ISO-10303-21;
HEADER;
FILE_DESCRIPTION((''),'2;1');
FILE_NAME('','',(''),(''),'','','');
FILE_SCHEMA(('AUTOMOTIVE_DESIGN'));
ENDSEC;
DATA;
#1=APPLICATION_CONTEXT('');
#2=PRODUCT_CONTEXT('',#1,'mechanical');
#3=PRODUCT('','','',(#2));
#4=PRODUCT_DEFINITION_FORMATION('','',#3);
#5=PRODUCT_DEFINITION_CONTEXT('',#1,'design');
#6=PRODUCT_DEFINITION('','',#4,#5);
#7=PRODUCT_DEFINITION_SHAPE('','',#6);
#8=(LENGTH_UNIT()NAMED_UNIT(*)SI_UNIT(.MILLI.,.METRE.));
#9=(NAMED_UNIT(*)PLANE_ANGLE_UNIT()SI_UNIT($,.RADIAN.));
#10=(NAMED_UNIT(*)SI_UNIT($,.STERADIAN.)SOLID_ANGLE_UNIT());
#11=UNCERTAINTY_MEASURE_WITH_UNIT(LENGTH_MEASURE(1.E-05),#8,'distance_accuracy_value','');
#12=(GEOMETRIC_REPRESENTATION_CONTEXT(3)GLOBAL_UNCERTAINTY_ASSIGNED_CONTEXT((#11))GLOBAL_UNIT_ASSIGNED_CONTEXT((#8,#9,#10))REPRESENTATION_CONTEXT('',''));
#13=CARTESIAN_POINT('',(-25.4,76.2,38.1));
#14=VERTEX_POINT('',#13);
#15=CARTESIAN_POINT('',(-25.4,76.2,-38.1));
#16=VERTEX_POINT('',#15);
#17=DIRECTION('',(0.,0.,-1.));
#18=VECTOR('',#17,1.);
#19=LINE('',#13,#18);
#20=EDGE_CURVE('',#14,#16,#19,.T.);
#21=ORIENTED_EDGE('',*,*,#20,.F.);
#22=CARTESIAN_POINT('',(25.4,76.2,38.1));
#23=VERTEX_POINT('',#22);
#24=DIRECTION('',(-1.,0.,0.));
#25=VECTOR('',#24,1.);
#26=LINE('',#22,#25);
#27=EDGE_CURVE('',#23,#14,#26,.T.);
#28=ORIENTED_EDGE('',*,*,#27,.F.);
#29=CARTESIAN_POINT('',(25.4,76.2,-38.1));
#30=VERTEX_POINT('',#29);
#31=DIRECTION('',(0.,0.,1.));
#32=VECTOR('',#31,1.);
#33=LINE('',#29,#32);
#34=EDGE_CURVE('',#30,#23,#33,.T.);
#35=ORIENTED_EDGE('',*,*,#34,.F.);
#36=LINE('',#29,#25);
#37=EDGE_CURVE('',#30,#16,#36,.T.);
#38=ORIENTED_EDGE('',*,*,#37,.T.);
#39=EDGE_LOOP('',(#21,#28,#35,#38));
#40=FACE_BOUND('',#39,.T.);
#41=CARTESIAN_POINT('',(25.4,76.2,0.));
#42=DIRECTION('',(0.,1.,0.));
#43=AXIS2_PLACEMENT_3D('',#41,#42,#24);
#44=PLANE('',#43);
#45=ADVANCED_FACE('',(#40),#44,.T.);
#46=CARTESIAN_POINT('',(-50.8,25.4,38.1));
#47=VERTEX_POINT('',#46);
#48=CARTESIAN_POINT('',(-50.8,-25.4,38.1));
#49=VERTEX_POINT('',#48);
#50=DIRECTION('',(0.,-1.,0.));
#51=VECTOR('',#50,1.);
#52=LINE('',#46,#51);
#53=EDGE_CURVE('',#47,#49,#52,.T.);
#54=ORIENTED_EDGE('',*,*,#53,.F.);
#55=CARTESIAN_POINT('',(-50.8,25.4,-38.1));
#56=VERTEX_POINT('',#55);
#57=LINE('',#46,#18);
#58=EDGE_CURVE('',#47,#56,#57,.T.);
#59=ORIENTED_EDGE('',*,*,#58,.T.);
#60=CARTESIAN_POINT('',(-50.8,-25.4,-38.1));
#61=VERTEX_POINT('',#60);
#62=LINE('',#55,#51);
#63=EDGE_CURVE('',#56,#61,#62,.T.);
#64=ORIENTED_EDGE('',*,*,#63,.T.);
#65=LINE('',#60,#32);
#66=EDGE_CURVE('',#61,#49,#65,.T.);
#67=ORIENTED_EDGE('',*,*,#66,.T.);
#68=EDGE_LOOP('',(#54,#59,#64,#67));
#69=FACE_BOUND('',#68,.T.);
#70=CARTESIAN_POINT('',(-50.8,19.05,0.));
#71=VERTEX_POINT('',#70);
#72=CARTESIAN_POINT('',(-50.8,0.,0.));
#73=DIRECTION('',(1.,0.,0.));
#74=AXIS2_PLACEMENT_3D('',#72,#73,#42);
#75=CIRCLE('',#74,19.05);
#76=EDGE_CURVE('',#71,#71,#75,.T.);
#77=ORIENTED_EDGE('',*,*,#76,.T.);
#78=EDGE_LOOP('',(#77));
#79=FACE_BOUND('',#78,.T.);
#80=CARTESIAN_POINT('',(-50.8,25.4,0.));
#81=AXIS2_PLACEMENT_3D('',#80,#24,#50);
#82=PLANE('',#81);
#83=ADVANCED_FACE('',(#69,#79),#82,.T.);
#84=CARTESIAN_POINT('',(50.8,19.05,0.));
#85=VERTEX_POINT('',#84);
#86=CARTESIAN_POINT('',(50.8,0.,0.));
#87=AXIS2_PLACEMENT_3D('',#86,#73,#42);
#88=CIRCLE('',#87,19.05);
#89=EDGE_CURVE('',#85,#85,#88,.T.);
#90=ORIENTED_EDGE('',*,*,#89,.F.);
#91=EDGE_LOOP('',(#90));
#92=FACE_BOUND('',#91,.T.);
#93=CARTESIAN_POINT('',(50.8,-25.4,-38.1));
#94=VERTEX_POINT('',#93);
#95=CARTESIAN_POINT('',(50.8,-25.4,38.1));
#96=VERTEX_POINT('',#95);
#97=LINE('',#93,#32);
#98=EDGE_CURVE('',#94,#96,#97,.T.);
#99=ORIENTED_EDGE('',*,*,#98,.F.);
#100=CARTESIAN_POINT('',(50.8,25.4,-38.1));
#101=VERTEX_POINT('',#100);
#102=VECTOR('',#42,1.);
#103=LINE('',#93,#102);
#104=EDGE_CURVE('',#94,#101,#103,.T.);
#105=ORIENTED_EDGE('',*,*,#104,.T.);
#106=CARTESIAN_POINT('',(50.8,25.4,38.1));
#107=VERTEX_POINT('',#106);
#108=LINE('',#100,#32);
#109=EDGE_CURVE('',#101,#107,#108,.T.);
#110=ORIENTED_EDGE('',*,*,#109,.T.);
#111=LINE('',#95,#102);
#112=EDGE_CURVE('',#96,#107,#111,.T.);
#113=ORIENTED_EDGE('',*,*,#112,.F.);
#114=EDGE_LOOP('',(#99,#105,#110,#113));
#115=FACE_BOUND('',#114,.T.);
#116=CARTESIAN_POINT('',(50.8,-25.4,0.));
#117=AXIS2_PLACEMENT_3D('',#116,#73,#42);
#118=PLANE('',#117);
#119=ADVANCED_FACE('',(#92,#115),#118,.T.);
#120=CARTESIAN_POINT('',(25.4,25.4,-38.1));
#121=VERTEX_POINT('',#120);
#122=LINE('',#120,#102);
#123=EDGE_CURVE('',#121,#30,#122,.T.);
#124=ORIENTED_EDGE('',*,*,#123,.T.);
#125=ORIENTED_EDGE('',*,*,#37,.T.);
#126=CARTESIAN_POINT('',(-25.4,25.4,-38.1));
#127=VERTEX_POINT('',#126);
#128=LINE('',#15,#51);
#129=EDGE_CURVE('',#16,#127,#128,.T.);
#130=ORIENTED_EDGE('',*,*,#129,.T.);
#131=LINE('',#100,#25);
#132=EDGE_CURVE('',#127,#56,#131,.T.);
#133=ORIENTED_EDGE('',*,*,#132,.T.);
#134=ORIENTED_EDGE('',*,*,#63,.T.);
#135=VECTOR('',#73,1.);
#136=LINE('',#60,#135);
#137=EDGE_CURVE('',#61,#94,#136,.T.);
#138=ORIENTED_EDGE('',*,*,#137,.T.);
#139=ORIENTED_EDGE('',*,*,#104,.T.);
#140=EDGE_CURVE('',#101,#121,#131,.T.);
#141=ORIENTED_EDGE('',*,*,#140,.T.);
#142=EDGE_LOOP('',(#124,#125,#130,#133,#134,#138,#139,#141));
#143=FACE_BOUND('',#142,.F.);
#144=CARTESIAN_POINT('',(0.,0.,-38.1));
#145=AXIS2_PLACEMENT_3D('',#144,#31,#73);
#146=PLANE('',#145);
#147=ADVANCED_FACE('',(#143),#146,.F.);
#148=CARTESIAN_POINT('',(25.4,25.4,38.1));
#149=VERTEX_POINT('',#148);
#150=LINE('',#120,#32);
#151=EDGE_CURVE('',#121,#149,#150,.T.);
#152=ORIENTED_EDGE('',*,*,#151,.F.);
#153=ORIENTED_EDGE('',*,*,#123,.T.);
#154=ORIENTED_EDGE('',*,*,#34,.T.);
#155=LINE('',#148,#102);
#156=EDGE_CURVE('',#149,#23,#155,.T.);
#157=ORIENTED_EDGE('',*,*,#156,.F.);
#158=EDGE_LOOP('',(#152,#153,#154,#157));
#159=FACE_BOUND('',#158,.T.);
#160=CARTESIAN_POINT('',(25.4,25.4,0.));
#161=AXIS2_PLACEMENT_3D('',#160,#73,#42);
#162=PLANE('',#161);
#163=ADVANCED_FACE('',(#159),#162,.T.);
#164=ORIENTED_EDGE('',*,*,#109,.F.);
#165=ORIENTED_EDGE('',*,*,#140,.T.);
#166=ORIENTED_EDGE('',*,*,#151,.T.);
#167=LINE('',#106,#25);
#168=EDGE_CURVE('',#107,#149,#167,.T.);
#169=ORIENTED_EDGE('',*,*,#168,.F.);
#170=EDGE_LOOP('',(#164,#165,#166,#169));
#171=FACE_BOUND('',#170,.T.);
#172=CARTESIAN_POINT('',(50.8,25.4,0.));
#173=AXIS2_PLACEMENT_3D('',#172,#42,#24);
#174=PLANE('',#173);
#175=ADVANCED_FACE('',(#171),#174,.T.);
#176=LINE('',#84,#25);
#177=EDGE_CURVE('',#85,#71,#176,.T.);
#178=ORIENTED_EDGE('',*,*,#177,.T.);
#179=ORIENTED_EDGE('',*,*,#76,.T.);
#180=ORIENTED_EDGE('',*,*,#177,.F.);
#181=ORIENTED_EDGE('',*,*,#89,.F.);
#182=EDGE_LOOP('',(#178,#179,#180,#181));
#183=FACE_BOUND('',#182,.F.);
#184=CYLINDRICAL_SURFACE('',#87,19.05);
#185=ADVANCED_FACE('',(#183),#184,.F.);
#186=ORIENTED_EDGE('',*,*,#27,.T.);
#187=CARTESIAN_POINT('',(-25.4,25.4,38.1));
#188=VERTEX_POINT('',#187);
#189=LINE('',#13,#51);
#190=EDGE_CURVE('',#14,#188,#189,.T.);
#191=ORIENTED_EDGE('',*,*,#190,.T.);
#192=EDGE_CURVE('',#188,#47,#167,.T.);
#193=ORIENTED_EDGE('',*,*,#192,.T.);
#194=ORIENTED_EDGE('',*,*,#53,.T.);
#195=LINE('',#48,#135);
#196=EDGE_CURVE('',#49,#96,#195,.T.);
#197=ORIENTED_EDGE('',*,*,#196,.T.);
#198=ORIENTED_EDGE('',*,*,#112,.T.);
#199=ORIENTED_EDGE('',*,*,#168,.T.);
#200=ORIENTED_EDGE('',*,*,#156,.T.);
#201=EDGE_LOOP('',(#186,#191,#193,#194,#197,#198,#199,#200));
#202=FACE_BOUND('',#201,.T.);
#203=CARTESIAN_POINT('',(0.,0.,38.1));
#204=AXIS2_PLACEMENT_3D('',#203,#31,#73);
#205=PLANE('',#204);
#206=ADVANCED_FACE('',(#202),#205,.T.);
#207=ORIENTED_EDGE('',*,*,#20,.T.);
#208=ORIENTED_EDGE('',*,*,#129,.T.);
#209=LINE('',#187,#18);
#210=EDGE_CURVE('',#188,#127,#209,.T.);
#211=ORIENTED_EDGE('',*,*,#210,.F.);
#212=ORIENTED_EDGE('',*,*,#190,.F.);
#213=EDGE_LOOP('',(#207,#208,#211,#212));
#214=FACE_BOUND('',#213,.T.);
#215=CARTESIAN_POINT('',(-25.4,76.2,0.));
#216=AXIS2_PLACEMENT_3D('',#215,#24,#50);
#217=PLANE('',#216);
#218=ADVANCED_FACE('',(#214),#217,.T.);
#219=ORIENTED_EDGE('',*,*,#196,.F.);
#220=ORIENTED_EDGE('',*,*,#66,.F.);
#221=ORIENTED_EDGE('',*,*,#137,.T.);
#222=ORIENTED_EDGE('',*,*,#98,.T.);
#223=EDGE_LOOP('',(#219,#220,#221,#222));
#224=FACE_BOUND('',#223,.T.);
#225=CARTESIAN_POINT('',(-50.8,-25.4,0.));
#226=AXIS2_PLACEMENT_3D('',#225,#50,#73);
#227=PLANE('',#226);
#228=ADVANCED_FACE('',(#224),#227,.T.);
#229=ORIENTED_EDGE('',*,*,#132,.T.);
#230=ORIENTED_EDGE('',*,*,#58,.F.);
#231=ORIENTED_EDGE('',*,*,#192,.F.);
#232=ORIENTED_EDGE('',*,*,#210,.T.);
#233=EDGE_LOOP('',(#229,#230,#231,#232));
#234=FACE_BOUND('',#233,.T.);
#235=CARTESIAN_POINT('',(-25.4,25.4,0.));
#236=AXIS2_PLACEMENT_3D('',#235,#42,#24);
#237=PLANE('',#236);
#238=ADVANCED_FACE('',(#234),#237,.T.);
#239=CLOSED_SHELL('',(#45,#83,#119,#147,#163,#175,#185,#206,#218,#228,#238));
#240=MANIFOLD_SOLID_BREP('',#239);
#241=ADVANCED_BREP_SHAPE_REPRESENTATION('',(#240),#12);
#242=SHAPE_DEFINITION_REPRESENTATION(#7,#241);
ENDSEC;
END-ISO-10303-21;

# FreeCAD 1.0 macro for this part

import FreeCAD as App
import Part
import Sketcher
from FreeCAD import Vector
Q = App.Units.Quantity

doc = App.newDocument("Part")
body = doc.addObject("PartDesign::Body", "Body")

# Sketch on XY plane
sketch1 = doc.addObject("Sketcher::SketchObject", "Sketch")
body.addObject(sketch1)
sketch1.AttachmentSupport = (doc.XY_Plane, [""])
sketch1.MapMode = "FlatFace"
sketch1.addGeometry([
    Part.LineSegment(Vector(-51, 25, 0), Vector(-51, -25, 0)),  # 0
    Part.LineSegment(Vector(-51, -25, 0), Vector(51, -25, 0)),  # 1
    Part.LineSegment(Vector(51, -25, 0), Vector(51, 25, 0)),  # 2
    Part.LineSegment(Vector(51, 25, 0), Vector(25, 25, 0)),  # 3
    Part.LineSegment(Vector(25, 25, 0), Vector(25, 76, 0)),  # 4
    Part.LineSegment(Vector(25, 76, 0), Vector(-25, 76, 0)),  # 5
    Part.LineSegment(Vector(-25, 76, 0), Vector(-25, 25, 0)),  # 6
    Part.LineSegment(Vector(-25, 25, 0), Vector(-51, 25, 0)),  # 7
], False)
sketch1.addConstraint([
    Sketcher.Constraint("Coincident", 0, 2, 1, 1),
    Sketcher.Constraint("Coincident", 1, 2, 2, 1),
    Sketcher.Constraint("Coincident", 2, 2, 3, 1),
    Sketcher.Constraint("Coincident", 3, 2, 4, 1),
    Sketcher.Constraint("Coincident", 4, 2, 5, 1),
    Sketcher.Constraint("Coincident", 5, 2, 6, 1),
    Sketcher.Constraint("Coincident", 6, 2, 7, 1),
    Sketcher.Constraint("Coincident", 7, 2, 0, 1),
    Sketcher.Constraint("Vertical", 0),
    Sketcher.Constraint("Horizontal", 1),
    Sketcher.Constraint("Vertical", 2),
    Sketcher.Constraint("Horizontal", 3),
    Sketcher.Constraint("Vertical", 4),
    Sketcher.Constraint("Horizontal", 5),
    Sketcher.Constraint("Vertical", 6),
    Sketcher.Constraint("Horizontal", 7),
    Sketcher.Constraint("Symmetric", 0, 2, 2, 2, -1, 1),
    Sketcher.Constraint("Symmetric", 3, 2, 6, 2, -2),
    Sketcher.Constraint("Equal", 5, 0),
    Sketcher.Constraint("Equal", 2, 4),
    Sketcher.Constraint("DistanceX", 1, 1, 1, 2, Q("4 in")),
    Sketcher.Constraint("DistanceX", 3, 2, 3, 1, Q("1 in")),
])
pad1 = doc.addObject("PartDesign::Pad", "Pad")
body.addObject(pad1)
pad1.Profile = sketch1
pad1.Length = Q("3 in")
pad1.Midplane = True

# Sketch on YZ plane
sketch2 = doc.addObject("Sketcher::SketchObject", "Sketch001")
body.addObject(sketch2)
sketch2.AttachmentSupport = (doc.YZ_Plane, [""])
sketch2.MapMode = "FlatFace"
sketch2.AttachmentOffset = App.Placement(Vector(0, 0, 2 * 25.4), App.Rotation())
sketch2.addGeometry(Part.Circle(Vector(0, 0, 0), Vector(0, 0, 1), 19), False)
sketch2.addConstraint([
    Sketcher.Constraint("Coincident", 0, 3, -1, 1),
    Sketcher.Constraint("Diameter", 0, Q("1.5 in")),
])
pocket1 = doc.addObject("PartDesign::Pocket", "Pocket")
body.addObject(pocket1)
pocket1.Profile = sketch2
pocket1.Type = "ThroughAll"

doc.recompute()
